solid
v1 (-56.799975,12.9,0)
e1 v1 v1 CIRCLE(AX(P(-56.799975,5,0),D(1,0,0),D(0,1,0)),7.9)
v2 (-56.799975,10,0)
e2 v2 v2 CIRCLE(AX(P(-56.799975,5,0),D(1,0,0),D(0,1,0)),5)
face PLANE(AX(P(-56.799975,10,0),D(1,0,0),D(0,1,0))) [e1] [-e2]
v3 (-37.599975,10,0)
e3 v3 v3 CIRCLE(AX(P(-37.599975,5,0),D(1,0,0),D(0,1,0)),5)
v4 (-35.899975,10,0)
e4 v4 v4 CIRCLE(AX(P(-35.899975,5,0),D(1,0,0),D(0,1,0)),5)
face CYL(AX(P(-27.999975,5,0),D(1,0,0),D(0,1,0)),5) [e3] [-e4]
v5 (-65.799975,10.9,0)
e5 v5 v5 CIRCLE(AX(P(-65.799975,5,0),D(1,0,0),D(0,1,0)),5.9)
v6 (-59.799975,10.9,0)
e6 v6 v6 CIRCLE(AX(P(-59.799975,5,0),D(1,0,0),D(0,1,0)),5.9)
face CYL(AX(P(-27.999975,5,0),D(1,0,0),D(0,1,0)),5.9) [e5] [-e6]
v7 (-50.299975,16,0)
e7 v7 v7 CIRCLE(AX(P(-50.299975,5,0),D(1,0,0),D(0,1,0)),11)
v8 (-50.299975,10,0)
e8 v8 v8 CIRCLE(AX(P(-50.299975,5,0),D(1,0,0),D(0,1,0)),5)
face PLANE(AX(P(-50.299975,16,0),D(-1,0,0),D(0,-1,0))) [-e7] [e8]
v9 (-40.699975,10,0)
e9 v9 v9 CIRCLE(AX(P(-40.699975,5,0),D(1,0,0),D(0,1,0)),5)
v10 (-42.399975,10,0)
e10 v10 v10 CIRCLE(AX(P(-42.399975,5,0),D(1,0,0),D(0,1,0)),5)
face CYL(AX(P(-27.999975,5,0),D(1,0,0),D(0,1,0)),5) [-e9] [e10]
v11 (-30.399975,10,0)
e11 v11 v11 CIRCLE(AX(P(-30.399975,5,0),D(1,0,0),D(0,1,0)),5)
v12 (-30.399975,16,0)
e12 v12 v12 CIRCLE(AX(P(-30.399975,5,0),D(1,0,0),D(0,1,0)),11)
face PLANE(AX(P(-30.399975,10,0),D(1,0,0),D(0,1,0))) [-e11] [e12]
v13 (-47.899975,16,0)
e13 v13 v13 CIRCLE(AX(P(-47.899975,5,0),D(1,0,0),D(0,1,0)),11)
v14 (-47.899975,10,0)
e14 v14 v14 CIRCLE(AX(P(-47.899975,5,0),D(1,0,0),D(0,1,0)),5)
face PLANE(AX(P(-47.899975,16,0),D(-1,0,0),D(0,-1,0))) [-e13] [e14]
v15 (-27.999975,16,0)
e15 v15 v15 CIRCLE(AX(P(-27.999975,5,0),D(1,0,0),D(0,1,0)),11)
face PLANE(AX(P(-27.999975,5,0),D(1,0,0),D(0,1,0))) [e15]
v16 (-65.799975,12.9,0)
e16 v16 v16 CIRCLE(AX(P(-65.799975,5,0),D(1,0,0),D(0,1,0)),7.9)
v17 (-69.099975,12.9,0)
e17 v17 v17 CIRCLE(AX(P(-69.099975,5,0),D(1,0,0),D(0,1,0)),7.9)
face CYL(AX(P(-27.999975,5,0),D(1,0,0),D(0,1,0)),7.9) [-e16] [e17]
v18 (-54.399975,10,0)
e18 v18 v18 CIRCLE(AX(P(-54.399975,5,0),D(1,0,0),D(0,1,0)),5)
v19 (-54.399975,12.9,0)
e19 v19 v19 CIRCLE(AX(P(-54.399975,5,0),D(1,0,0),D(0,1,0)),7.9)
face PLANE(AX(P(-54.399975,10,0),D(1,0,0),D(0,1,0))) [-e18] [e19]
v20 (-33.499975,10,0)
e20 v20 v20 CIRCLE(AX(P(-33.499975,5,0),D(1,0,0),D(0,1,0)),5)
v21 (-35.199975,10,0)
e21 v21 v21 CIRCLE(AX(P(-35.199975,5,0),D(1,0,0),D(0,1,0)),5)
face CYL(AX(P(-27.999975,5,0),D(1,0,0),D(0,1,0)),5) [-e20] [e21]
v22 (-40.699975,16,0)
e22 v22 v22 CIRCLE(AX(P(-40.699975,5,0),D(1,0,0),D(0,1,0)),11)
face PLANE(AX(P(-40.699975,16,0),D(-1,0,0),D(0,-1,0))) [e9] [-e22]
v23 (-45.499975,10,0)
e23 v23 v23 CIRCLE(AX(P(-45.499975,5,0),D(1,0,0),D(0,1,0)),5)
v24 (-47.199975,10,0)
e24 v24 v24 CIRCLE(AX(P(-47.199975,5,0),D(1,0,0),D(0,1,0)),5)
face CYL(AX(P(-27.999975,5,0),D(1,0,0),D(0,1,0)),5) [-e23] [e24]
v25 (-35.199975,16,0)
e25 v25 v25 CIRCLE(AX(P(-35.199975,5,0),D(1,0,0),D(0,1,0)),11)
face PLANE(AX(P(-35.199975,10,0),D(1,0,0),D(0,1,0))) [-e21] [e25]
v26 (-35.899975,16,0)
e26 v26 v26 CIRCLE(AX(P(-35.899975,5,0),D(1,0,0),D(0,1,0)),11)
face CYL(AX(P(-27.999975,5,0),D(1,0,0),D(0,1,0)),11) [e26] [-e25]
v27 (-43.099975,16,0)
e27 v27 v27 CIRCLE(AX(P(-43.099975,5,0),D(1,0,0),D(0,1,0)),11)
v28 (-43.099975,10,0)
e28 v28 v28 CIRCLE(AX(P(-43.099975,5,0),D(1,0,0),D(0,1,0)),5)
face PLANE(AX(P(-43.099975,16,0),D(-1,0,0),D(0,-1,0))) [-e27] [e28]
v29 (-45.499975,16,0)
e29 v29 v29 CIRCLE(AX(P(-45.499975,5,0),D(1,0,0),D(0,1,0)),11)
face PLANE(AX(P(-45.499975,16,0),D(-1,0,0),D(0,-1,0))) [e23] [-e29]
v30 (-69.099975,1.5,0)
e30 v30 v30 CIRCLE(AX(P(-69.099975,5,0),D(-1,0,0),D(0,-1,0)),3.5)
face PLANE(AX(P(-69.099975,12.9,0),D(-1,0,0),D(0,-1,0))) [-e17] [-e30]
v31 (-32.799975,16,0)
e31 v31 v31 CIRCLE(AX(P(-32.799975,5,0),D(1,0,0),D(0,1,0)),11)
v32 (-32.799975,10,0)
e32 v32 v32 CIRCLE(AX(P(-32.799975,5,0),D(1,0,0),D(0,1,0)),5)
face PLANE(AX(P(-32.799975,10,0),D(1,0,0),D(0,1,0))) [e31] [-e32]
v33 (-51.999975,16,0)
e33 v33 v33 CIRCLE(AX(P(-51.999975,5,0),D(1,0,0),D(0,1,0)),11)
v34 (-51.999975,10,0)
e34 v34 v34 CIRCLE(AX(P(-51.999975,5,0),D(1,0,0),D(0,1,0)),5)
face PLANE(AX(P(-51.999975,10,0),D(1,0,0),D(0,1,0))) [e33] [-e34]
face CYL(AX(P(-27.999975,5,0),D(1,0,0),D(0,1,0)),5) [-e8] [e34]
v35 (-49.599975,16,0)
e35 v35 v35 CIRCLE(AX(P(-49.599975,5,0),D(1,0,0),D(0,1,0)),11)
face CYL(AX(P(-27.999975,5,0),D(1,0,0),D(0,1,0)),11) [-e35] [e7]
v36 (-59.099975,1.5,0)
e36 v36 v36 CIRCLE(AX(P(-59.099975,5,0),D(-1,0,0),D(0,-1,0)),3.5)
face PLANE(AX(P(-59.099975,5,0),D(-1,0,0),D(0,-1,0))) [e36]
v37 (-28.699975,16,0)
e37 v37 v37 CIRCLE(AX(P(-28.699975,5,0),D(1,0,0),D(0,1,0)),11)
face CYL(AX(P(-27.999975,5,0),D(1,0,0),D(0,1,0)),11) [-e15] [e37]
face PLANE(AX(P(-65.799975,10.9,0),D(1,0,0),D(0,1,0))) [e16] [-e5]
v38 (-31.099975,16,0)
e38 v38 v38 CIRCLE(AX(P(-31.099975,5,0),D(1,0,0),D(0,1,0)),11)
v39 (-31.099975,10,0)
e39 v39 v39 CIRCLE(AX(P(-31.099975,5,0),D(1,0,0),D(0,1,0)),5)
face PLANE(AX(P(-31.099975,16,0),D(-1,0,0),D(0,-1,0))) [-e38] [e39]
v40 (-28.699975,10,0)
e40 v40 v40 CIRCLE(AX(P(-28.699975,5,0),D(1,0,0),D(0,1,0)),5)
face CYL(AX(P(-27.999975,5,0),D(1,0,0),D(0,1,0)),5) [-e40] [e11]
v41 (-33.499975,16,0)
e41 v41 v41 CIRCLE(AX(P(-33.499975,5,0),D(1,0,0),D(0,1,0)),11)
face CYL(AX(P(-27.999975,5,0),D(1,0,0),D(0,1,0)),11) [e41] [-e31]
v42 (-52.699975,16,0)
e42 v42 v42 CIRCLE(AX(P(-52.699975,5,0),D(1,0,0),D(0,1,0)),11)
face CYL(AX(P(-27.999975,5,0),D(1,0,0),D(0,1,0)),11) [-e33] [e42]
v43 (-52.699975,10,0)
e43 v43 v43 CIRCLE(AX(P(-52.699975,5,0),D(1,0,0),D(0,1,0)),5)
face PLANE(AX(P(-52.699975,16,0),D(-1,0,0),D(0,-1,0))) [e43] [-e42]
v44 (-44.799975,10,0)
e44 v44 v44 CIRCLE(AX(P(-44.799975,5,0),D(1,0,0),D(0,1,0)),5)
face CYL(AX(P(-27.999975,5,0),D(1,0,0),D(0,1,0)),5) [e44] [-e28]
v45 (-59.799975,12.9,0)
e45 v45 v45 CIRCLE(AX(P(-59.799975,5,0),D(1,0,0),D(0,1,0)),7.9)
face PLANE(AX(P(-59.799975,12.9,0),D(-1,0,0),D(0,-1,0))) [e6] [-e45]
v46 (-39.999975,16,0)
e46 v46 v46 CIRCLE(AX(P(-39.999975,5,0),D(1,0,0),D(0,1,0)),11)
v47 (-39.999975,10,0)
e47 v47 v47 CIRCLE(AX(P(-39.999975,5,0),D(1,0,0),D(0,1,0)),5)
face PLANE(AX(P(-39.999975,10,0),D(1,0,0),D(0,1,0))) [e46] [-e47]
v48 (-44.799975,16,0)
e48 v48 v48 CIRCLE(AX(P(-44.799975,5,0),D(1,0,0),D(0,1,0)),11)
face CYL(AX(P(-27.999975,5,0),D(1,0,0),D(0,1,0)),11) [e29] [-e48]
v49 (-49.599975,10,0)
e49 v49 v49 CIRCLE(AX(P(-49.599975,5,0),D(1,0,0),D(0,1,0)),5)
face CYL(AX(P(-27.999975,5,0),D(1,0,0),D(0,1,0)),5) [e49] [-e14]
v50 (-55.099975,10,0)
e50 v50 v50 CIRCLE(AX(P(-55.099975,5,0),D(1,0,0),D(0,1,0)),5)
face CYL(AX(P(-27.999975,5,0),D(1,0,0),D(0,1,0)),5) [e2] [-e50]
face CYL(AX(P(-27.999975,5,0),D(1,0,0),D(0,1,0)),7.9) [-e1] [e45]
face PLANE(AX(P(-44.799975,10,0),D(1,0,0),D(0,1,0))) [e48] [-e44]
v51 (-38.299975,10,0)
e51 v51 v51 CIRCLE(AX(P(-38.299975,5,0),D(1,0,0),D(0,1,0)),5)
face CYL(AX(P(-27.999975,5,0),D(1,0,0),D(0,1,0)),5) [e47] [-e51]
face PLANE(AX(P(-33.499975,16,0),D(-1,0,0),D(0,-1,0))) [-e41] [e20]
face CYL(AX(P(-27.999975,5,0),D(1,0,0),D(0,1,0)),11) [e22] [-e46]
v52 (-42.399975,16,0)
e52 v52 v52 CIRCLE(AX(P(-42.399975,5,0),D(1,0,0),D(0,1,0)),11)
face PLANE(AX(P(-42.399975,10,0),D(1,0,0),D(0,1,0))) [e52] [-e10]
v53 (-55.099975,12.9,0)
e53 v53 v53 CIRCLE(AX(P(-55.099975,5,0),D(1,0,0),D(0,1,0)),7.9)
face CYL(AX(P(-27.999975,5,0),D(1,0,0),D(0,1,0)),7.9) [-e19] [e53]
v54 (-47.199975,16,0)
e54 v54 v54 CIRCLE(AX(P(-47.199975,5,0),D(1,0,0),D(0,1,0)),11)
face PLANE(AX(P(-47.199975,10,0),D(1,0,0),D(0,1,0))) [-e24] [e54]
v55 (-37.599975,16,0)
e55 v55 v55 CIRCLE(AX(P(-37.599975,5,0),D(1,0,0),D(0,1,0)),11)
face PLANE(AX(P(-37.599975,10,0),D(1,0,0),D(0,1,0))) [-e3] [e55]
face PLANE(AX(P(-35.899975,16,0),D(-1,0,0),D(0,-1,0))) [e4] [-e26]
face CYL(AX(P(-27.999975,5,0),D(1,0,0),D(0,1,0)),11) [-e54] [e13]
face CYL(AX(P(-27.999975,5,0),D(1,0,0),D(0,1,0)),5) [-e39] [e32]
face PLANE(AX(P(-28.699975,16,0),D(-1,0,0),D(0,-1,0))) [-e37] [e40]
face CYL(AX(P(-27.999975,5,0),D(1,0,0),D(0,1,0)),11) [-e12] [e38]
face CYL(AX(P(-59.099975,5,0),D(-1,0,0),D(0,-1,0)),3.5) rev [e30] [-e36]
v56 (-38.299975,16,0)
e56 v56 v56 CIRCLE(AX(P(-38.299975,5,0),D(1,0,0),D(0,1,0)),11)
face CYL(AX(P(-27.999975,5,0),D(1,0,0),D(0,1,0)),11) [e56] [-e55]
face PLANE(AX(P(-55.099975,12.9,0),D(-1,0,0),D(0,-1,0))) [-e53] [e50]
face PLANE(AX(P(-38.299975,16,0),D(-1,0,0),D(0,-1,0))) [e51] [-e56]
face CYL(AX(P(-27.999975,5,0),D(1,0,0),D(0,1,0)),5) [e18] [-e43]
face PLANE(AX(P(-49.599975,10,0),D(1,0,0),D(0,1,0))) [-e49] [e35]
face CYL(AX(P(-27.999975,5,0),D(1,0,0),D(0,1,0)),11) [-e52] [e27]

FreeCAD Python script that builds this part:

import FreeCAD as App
import Part
import Sketcher
from FreeCAD import Vector

doc = App.newDocument("Part")
params = doc.addObject("Spreadsheet::Sheet", "Params")
for row, (alias, value) in enumerate([
    ("sketch1_width", "3 mm"),
    ("sketch1_width2", "6 mm"),
    ("sketch1_height", "11 mm"),
    ("sketch1_height2", "2 mm"),
    ("sketch1_width3", "0.7 mm"),
    ("revolution_angle", "360 deg"),
    ("sketch2_diameter", "7 mm"),
    ("pocket1_length", "10 mm"),
], start=1):
    params.set(f"A{row}", alias)
    params.set(f"B{row}", "=" + value)
    params.setAlias(f"B{row}", alias)

body = doc.addObject("PartDesign::Body", "Body")

# Sketch on XY plane
sketch1 = body.newObject("Sketcher::SketchObject", "Sketch")
sketch1.AttachmentSupport = (doc.getObject("XY_Plane"), [""])
sketch1.MapMode = "FlatFace"
sketch1.addGeometry([
    Part.LineSegment(Vector(-27.999975, 5, 0), Vector(-27.999975, 16, 0)),  # 0
    Part.LineSegment(Vector(-27.999975, 16, 0), Vector(-28.699975, 16, 0)),  # 1
    Part.LineSegment(Vector(-28.699975, 16, 0), Vector(-28.699975, 10, 0)),  # 2
    Part.LineSegment(Vector(-28.699975, 10, 0), Vector(-30.399975, 10, 0)),  # 3
    Part.LineSegment(Vector(-30.399975, 10, 0), Vector(-30.399975, 16, 0)),  # 4
    Part.LineSegment(Vector(-30.399975, 16, 0), Vector(-31.099975, 16, 0)),  # 5
    Part.LineSegment(Vector(-31.099975, 16, 0), Vector(-31.099975, 10, 0)),  # 6
    Part.LineSegment(Vector(-31.099975, 10, 0), Vector(-32.799975, 10, 0)),  # 7
    Part.LineSegment(Vector(-32.799975, 10, 0), Vector(-32.799975, 16, 0)),  # 8
    Part.LineSegment(Vector(-32.799975, 16, 0), Vector(-33.499975, 16, 0)),  # 9
    Part.LineSegment(Vector(-33.499975, 16, 0), Vector(-33.499975, 10, 0)),  # 10
    Part.LineSegment(Vector(-33.499975, 10, 0), Vector(-35.199975, 10, 0)),  # 11
    Part.LineSegment(Vector(-35.199975, 10, 0), Vector(-35.199975, 16, 0)),  # 12
    Part.LineSegment(Vector(-35.199975, 16, 0), Vector(-35.899975, 16, 0)),  # 13
    Part.LineSegment(Vector(-35.899975, 16, 0), Vector(-35.899975, 10, 0)),  # 14
    Part.LineSegment(Vector(-35.899975, 10, 0), Vector(-37.599975, 10, 0)),  # 15
    Part.LineSegment(Vector(-37.599975, 10, 0), Vector(-37.599975, 16, 0)),  # 16
    Part.LineSegment(Vector(-37.599975, 16, 0), Vector(-38.299975, 16, 0)),  # 17
    Part.LineSegment(Vector(-38.299975, 16, 0), Vector(-38.299975, 10, 0)),  # 18
    Part.LineSegment(Vector(-38.299975, 10, 0), Vector(-39.999975, 10, 0)),  # 19
    Part.LineSegment(Vector(-39.999975, 10, 0), Vector(-39.999975, 16, 0)),  # 20
    Part.LineSegment(Vector(-39.999975, 16, 0), Vector(-40.699975, 16, 0)),  # 21
    Part.LineSegment(Vector(-40.699975, 16, 0), Vector(-40.699975, 10, 0)),  # 22
    Part.LineSegment(Vector(-40.699975, 10, 0), Vector(-42.399975, 10, 0)),  # 23
    Part.LineSegment(Vector(-42.399975, 10, 0), Vector(-42.399975, 16, 0)),  # 24
    Part.LineSegment(Vector(-42.399975, 16, 0), Vector(-43.099975, 16, 0)),  # 25
    Part.LineSegment(Vector(-43.099975, 16, 0), Vector(-43.099975, 10, 0)),  # 26
    Part.LineSegment(Vector(-43.099975, 10, 0), Vector(-44.799975, 10, 0)),  # 27
    Part.LineSegment(Vector(-44.799975, 10, 0), Vector(-44.799975, 16, 0)),  # 28
    Part.LineSegment(Vector(-44.799975, 16, 0), Vector(-45.499975, 16, 0)),  # 29
    Part.LineSegment(Vector(-45.499975, 16, 0), Vector(-45.499975, 10, 0)),  # 30
    Part.LineSegment(Vector(-45.499975, 10, 0), Vector(-47.199975, 10, 0)),  # 31
    Part.LineSegment(Vector(-47.199975, 10, 0), Vector(-47.199975, 16, 0)),  # 32
    Part.LineSegment(Vector(-47.199975, 16, 0), Vector(-47.899975, 16, 0)),  # 33
    Part.LineSegment(Vector(-47.899975, 16, 0), Vector(-47.899975, 10, 0)),  # 34
    Part.LineSegment(Vector(-47.899975, 10, 0), Vector(-49.599975, 10, 0)),  # 35
    Part.LineSegment(Vector(-49.599975, 10, 0), Vector(-49.599975, 16, 0)),  # 36
    Part.LineSegment(Vector(-49.599975, 16, 0), Vector(-50.299975, 16, 0)),  # 37
    Part.LineSegment(Vector(-50.299975, 16, 0), Vector(-50.299975, 10, 0)),  # 38
    Part.LineSegment(Vector(-50.299975, 10, 0), Vector(-51.999975, 10, 0)),  # 39
    Part.LineSegment(Vector(-51.999975, 10, 0), Vector(-51.999975, 16, 0)),  # 40
    Part.LineSegment(Vector(-51.999975, 16, 0), Vector(-52.699975, 16, 0)),  # 41
    Part.LineSegment(Vector(-52.699975, 16, 0), Vector(-52.699975, 10, 0)),  # 42
    Part.LineSegment(Vector(-52.699975, 10, 0), Vector(-54.399975, 10, 0)),  # 43
    Part.LineSegment(Vector(-54.399975, 10, 0), Vector(-54.399975, 12.9, 0)),  # 44
    Part.LineSegment(Vector(-54.399975, 12.9, 0), Vector(-55.099975, 12.9, 0)),  # 45
    Part.LineSegment(Vector(-55.099975, 12.9, 0), Vector(-55.099975, 10, 0)),  # 46
    Part.LineSegment(Vector(-55.099975, 10, 0), Vector(-56.799975, 10, 0)),  # 47
    Part.LineSegment(Vector(-56.799975, 10, 0), Vector(-56.799975, 12.9, 0)),  # 48
    Part.LineSegment(Vector(-56.799975, 12.9, 0), Vector(-59.799975, 12.9, 0)),  # 49
    Part.LineSegment(Vector(-59.799975, 12.9, 0), Vector(-59.799975, 10.9, 0)),  # 50
    Part.LineSegment(Vector(-59.799975, 10.9, 0), Vector(-65.799975, 10.9, 0)),  # 51
    Part.LineSegment(Vector(-65.799975, 10.9, 0), Vector(-65.799975, 12.9, 0)),  # 52
    Part.LineSegment(Vector(-65.799975, 12.9, 0), Vector(-69.099975, 12.9, 0)),  # 53
    Part.LineSegment(Vector(-69.099975, 12.9, 0), Vector(-69.099975, 5, 0)),  # 54
    Part.LineSegment(Vector(-69.099975, 5, 0), Vector(-27.999975, 5, 0)),  # 55
], False)
sketch1.addGeometry(Part.LineSegment(Vector(-27.999975, 5, 0), Vector(-69.099975, 5, 0)), True)  # axis
sketch1.addConstraint([
    Sketcher.Constraint("Coincident", 0, 2, 1, 1),
    Sketcher.Constraint("Coincident", 1, 2, 2, 1),
    Sketcher.Constraint("Coincident", 2, 2, 3, 1),
    Sketcher.Constraint("Coincident", 3, 2, 4, 1),
    Sketcher.Constraint("Coincident", 4, 2, 5, 1),
    Sketcher.Constraint("Coincident", 5, 2, 6, 1),
    Sketcher.Constraint("Coincident", 6, 2, 7, 1),
    Sketcher.Constraint("Coincident", 7, 2, 8, 1),
    Sketcher.Constraint("Coincident", 8, 2, 9, 1),
    Sketcher.Constraint("Coincident", 9, 2, 10, 1),
    Sketcher.Constraint("Coincident", 10, 2, 11, 1),
    Sketcher.Constraint("Coincident", 11, 2, 12, 1),
    Sketcher.Constraint("Coincident", 12, 2, 13, 1),
    Sketcher.Constraint("Coincident", 13, 2, 14, 1),
    Sketcher.Constraint("Coincident", 14, 2, 15, 1),
    Sketcher.Constraint("Coincident", 15, 2, 16, 1),
    Sketcher.Constraint("Coincident", 16, 2, 17, 1),
    Sketcher.Constraint("Coincident", 17, 2, 18, 1),
    Sketcher.Constraint("Coincident", 18, 2, 19, 1),
    Sketcher.Constraint("Coincident", 19, 2, 20, 1),
    Sketcher.Constraint("Coincident", 20, 2, 21, 1),
    Sketcher.Constraint("Coincident", 21, 2, 22, 1),
    Sketcher.Constraint("Coincident", 22, 2, 23, 1),
    Sketcher.Constraint("Coincident", 23, 2, 24, 1),
    Sketcher.Constraint("Coincident", 24, 2, 25, 1),
    Sketcher.Constraint("Coincident", 25, 2, 26, 1),
    Sketcher.Constraint("Coincident", 26, 2, 27, 1),
    Sketcher.Constraint("Coincident", 27, 2, 28, 1),
    Sketcher.Constraint("Coincident", 28, 2, 29, 1),
    Sketcher.Constraint("Coincident", 29, 2, 30, 1),
    Sketcher.Constraint("Coincident", 30, 2, 31, 1),
    Sketcher.Constraint("Coincident", 31, 2, 32, 1),
    Sketcher.Constraint("Coincident", 32, 2, 33, 1),
    Sketcher.Constraint("Coincident", 33, 2, 34, 1),
    Sketcher.Constraint("Coincident", 34, 2, 35, 1),
    Sketcher.Constraint("Coincident", 35, 2, 36, 1),
    Sketcher.Constraint("Coincident", 36, 2, 37, 1),
    Sketcher.Constraint("Coincident", 37, 2, 38, 1),
    Sketcher.Constraint("Coincident", 38, 2, 39, 1),
    Sketcher.Constraint("Coincident", 39, 2, 40, 1),
    Sketcher.Constraint("Coincident", 40, 2, 41, 1),
    Sketcher.Constraint("Coincident", 41, 2, 42, 1),
    Sketcher.Constraint("Coincident", 42, 2, 43, 1),
    Sketcher.Constraint("Coincident", 43, 2, 44, 1),
    Sketcher.Constraint("Coincident", 44, 2, 45, 1),
    Sketcher.Constraint("Coincident", 45, 2, 46, 1),
    Sketcher.Constraint("Coincident", 46, 2, 47, 1),
    Sketcher.Constraint("Coincident", 47, 2, 48, 1),
    Sketcher.Constraint("Coincident", 48, 2, 49, 1),
    Sketcher.Constraint("Coincident", 49, 2, 50, 1),
    Sketcher.Constraint("Coincident", 50, 2, 51, 1),
    Sketcher.Constraint("Coincident", 51, 2, 52, 1),
    Sketcher.Constraint("Coincident", 52, 2, 53, 1),
    Sketcher.Constraint("Coincident", 53, 2, 54, 1),
    Sketcher.Constraint("Coincident", 54, 2, 55, 1),
    Sketcher.Constraint("Coincident", 55, 2, 0, 1),
    Sketcher.Constraint("Vertical", 0),
    Sketcher.Constraint("Horizontal", 1),
    Sketcher.Constraint("Vertical", 2),
    Sketcher.Constraint("Horizontal", 3),
    Sketcher.Constraint("Vertical", 4),
    Sketcher.Constraint("Horizontal", 5),
    Sketcher.Constraint("Vertical", 6),
    Sketcher.Constraint("Horizontal", 7),
    Sketcher.Constraint("Vertical", 8),
    Sketcher.Constraint("Horizontal", 9),
    Sketcher.Constraint("Vertical", 10),
    Sketcher.Constraint("Horizontal", 11),
    Sketcher.Constraint("Vertical", 12),
    Sketcher.Constraint("Horizontal", 13),
    Sketcher.Constraint("Vertical", 14),
    Sketcher.Constraint("Horizontal", 15),
    Sketcher.Constraint("Vertical", 16),
    Sketcher.Constraint("Horizontal", 17),
    Sketcher.Constraint("Vertical", 18),
    Sketcher.Constraint("Horizontal", 19),
    Sketcher.Constraint("Vertical", 20),
    Sketcher.Constraint("Horizontal", 21),
    Sketcher.Constraint("Vertical", 22),
    Sketcher.Constraint("Horizontal", 23),
    Sketcher.Constraint("Vertical", 24),
    Sketcher.Constraint("Horizontal", 25),
    Sketcher.Constraint("Vertical", 26),
    Sketcher.Constraint("Horizontal", 27),
    Sketcher.Constraint("Vertical", 28),
    Sketcher.Constraint("Horizontal", 29),
    Sketcher.Constraint("Vertical", 30),
    Sketcher.Constraint("Horizontal", 31),
    Sketcher.Constraint("Vertical", 32),
    Sketcher.Constraint("Horizontal", 33),
    Sketcher.Constraint("Vertical", 34),
    Sketcher.Constraint("Horizontal", 35),
    Sketcher.Constraint("Vertical", 36),
    Sketcher.Constraint("Horizontal", 37),
    Sketcher.Constraint("Vertical", 38),
    Sketcher.Constraint("Horizontal", 39),
    Sketcher.Constraint("Vertical", 40),
    Sketcher.Constraint("Horizontal", 41),
    Sketcher.Constraint("Vertical", 42),
    Sketcher.Constraint("Horizontal", 43),
    Sketcher.Constraint("Vertical", 44),
    Sketcher.Constraint("Horizontal", 45),
    Sketcher.Constraint("Vertical", 46),
    Sketcher.Constraint("Horizontal", 47),
    Sketcher.Constraint("Vertical", 48),
    Sketcher.Constraint("Horizontal", 49),
    Sketcher.Constraint("Vertical", 50),
    Sketcher.Constraint("Horizontal", 51),
    Sketcher.Constraint("Vertical", 52),
    Sketcher.Constraint("Horizontal", 53),
    Sketcher.Constraint("Vertical", 54),
    Sketcher.Constraint("Horizontal", 55),
    Sketcher.Constraint("Horizontal", 56),
    Sketcher.Constraint("Coincident", 56, 1, 55, 2),
    Sketcher.Constraint("Horizontal", 1, 2, 4, 2),
    Sketcher.Constraint("Horizontal", 3, 2, 6, 2),
    Sketcher.Constraint("Horizontal", 5, 2, 8, 2),
    Sketcher.Constraint("Horizontal", 7, 2, 10, 2),
    Sketcher.Constraint("Horizontal", 9, 2, 12, 2),
    Sketcher.Constraint("Horizontal", 11, 2, 14, 2),
    Sketcher.Constraint("Horizontal", 13, 2, 16, 2),
    Sketcher.Constraint("Horizontal", 15, 2, 18, 2),
    Sketcher.Constraint("Horizontal", 17, 2, 20, 2),
    Sketcher.Constraint("Horizontal", 19, 2, 22, 2),
    Sketcher.Constraint("Horizontal", 21, 2, 24, 2),
    Sketcher.Constraint("Horizontal", 23, 2, 26, 2),
    Sketcher.Constraint("Horizontal", 25, 2, 28, 2),
    Sketcher.Constraint("Horizontal", 27, 2, 30, 2),
    Sketcher.Constraint("Horizontal", 29, 2, 32, 2),
    Sketcher.Constraint("Horizontal", 31, 2, 34, 2),
    Sketcher.Constraint("Horizontal", 33, 2, 36, 2),
    Sketcher.Constraint("Horizontal", 35, 2, 38, 2),
    Sketcher.Constraint("Horizontal", 37, 2, 40, 2),
    Sketcher.Constraint("Horizontal", 39, 2, 42, 2),
    Sketcher.Constraint("Horizontal", 43, 2, 46, 2),
    Sketcher.Constraint("Horizontal", 45, 2, 48, 2),
    Sketcher.Constraint("Horizontal", 49, 2, 52, 2),
    Sketcher.Constraint("Vertical", 53, 2, 56, 2),
    Sketcher.Constraint("Equal", 1, 5),
    Sketcher.Constraint("Equal", 3, 7),
    Sketcher.Constraint("Equal", 5, 9),
    Sketcher.Constraint("Equal", 7, 11),
    Sketcher.Constraint("Equal", 9, 13),
    Sketcher.Constraint("Equal", 11, 15),
    Sketcher.Constraint("Equal", 13, 17),
    Sketcher.Constraint("Equal", 15, 19),
    Sketcher.Constraint("Equal", 17, 21),
    Sketcher.Constraint("Equal", 19, 23),
    Sketcher.Constraint("Equal", 21, 25),
    Sketcher.Constraint("Equal", 23, 27),
    Sketcher.Constraint("Equal", 25, 29),
    Sketcher.Constraint("Equal", 27, 31),
    Sketcher.Constraint("Equal", 29, 33),
    Sketcher.Constraint("Equal", 31, 35),
    Sketcher.Constraint("Equal", 33, 37),
    Sketcher.Constraint("Equal", 35, 39),
    Sketcher.Constraint("Equal", 37, 41),
    Sketcher.Constraint("Equal", 39, 43),
    Sketcher.Constraint("Equal", 41, 45),
    Sketcher.Constraint("Equal", 43, 47),
    Sketcher.Constraint("Equal", 51, 2),
    Sketcher.Constraint("DistanceX", 49, 2, 49, 1, 3.0),
    Sketcher.Constraint("DistanceX", 51, 2, 51, 1, 6.0),
    Sketcher.Constraint("DistanceY", 0, 1, 0, 2, 11.0),
    Sketcher.Constraint("DistanceY", 50, 2, 50, 1, 2.0),
    Sketcher.Constraint("DistanceX", 1, 2, 1, 1, 0.7),
    Sketcher.Constraint("DistanceX", 3, 2, 3, 1, 1.7),
    Sketcher.Constraint("DistanceX", 53, 2, 53, 1, 3.3),
    Sketcher.Constraint("DistanceY", 44, 1, 44, 2, 2.9),
    Sketcher.Constraint("DistanceY", -1, 1, 0, 2, 16.0),
    Sketcher.Constraint("DistanceX", 0, 2, -1, 1, 27.999975),
])
sketch1.setExpression("Constraints[161]", "Params.sketch1_width")
sketch1.setExpression("Constraints[162]", "Params.sketch1_width2")
sketch1.setExpression("Constraints[163]", "Params.sketch1_height")
sketch1.setExpression("Constraints[164]", "Params.sketch1_height2")
sketch1.setExpression("Constraints[165]", "Params.sketch1_width3")
revolution = body.newObject("PartDesign::Revolution", "Revolution")
revolution.Profile = sketch1
revolution.ReferenceAxis = (sketch1, ["Axis0"])
revolution.setExpression("Angle", "Params.revolution_angle")

# Sketch on YZ plane
sketch2 = body.newObject("Sketcher::SketchObject", "Sketch001")
sketch2.AttachmentSupport = (doc.getObject("YZ_Plane"), [""])
sketch2.MapMode = "FlatFace"
sketch2.AttachmentOffset = App.Placement(Vector(0, 0, -69.099975), App.Rotation())
sketch2.addGeometry(Part.Circle(Vector(5, 0, 0), Vector(0, 0, 1), 3.5), False)
sketch2.addConstraint([
    Sketcher.Constraint("PointOnObject", 0, 3, -1),
    Sketcher.Constraint("Diameter", 0, 7.0),
    Sketcher.Constraint("DistanceX", -1, 1, 0, 3, 5.0),
])
sketch2.setExpression("Constraints[1]", "Params.sketch2_diameter")
pocket1 = body.newObject("PartDesign::Pocket", "Pocket")
pocket1.Profile = sketch2
pocket1.setExpression("Length", "Params.pocket1_length")
pocket1.Reversed = True

doc.recompute()
